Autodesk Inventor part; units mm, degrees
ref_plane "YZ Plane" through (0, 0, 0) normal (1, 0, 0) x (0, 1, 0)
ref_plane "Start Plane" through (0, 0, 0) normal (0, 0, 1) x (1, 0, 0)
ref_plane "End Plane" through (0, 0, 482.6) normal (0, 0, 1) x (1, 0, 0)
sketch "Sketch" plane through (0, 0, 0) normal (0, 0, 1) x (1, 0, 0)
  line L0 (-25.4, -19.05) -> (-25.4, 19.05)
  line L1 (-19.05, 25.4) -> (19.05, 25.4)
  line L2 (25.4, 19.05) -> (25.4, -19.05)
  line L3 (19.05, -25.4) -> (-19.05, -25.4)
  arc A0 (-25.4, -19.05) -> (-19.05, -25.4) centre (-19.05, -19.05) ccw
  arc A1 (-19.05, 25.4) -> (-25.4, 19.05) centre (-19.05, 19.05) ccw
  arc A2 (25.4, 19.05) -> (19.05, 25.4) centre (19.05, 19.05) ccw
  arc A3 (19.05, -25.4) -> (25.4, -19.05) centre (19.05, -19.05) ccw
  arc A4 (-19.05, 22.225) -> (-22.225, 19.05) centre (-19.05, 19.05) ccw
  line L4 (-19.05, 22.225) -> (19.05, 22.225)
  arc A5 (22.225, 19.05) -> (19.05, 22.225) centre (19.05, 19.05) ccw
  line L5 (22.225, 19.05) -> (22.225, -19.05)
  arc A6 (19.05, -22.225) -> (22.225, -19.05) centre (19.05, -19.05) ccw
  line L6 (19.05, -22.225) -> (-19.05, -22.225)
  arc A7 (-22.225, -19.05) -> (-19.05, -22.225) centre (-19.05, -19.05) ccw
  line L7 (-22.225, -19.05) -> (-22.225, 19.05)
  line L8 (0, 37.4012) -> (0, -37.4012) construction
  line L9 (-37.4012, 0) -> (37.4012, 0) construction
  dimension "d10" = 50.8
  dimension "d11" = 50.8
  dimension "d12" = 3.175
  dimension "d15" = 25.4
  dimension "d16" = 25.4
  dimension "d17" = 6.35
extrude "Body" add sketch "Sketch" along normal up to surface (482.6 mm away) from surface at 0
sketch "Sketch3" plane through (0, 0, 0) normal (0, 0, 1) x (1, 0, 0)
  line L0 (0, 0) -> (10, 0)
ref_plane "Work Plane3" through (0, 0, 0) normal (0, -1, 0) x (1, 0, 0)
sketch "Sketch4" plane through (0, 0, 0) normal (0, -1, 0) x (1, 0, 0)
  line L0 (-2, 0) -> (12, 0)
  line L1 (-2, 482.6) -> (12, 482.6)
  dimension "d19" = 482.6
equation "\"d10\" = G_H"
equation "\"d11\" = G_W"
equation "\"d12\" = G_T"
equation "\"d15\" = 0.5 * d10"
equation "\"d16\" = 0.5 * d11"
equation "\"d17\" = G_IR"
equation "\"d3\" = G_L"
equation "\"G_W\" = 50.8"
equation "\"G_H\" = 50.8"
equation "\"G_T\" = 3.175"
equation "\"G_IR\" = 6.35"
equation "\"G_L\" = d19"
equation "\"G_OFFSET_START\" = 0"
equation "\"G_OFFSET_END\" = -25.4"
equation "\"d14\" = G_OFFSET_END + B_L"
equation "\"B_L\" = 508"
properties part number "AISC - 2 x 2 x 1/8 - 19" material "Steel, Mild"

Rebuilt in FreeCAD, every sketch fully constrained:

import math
import FreeCAD as App
import Part
import Sketcher

V = App.Vector
Q = App.Units.Quantity

doc = App.newDocument("Part")
body = doc.addObject("PartDesign::Body", "Body")

# Sketch on XY plane
sketch1 = body.newObject("Sketcher::SketchObject", "Sketch")
sketch1.AttachmentSupport = (doc.getObject("XY_Plane"), [""])
sketch1.MapMode = "FlatFace"
sketch1.addGeometry([
    Part.LineSegment(V(-25.4, 19.1, 0), V(-25.4, -19.1, 0)),  # 0
    Part.ArcOfCircle(Part.Circle(V(-19.1, -19.1, 0), V(0, 0, 1), 6.3), math.radians(180), math.radians(270)),  # 1
    Part.LineSegment(V(-19.1, -25.4, 0), V(19.1, -25.4, 0)),  # 2
    Part.ArcOfCircle(Part.Circle(V(19.1, -19.1, 0), V(0, 0, 1), 6.3), math.radians(-90), math.radians(0)),  # 3
    Part.LineSegment(V(25.4, -19.1, 0), V(25.4, 19.1, 0)),  # 4
    Part.ArcOfCircle(Part.Circle(V(19.1, 19.1, 0), V(0, 0, 1), 6.3), math.radians(0), math.radians(90)),  # 5
    Part.LineSegment(V(19.1, 25.4, 0), V(-19.1, 25.4, 0)),  # 6
    Part.ArcOfCircle(Part.Circle(V(-19.1, 19.1, 0), V(0, 0, 1), 6.3), math.radians(90), math.radians(180)),  # 7
    Part.ArcOfCircle(Part.Circle(V(-19.1, 19.1, 0), V(0, 0, 1), 3.2), math.radians(90), math.radians(180)),  # 8
    Part.LineSegment(V(-19.1, 22.2, 0), V(19.1, 22.2, 0)),  # 9
    Part.ArcOfCircle(Part.Circle(V(19.1, 19.1, 0), V(0, 0, 1), 3.2), math.radians(0), math.radians(90)),  # 10
    Part.LineSegment(V(22.2, 19.1, 0), V(22.2, -19.1, 0)),  # 11
    Part.ArcOfCircle(Part.Circle(V(19.1, -19.1, 0), V(0, 0, 1), 3.2), math.radians(-90), math.radians(0)),  # 12
    Part.LineSegment(V(19.1, -22.2, 0), V(-19.1, -22.2, 0)),  # 13
    Part.ArcOfCircle(Part.Circle(V(-19.1, -19.1, 0), V(0, 0, 1), 3.2), math.radians(180), math.radians(270)),  # 14
    Part.LineSegment(V(-22.2, -19.1, 0), V(-22.2, 19.1, 0)),  # 15
], False)
sketch1.addConstraint([
    Sketcher.Constraint("Tangent", 0, 2, 1, 1),
    Sketcher.Constraint("Tangent", 1, 2, 2, 1),
    Sketcher.Constraint("Tangent", 2, 2, 3, 1),
    Sketcher.Constraint("Tangent", 3, 2, 4, 1),
    Sketcher.Constraint("Tangent", 4, 2, 5, 1),
    Sketcher.Constraint("Tangent", 5, 2, 6, 1),
    Sketcher.Constraint("Tangent", 6, 2, 7, 1),
    Sketcher.Constraint("Tangent", 7, 2, 0, 1),
    Sketcher.Constraint("Tangent", 8, 1, 9, 1),
    Sketcher.Constraint("Tangent", 9, 2, 10, 2),
    Sketcher.Constraint("Tangent", 10, 1, 11, 1),
    Sketcher.Constraint("Tangent", 11, 2, 12, 2),
    Sketcher.Constraint("Tangent", 12, 1, 13, 1),
    Sketcher.Constraint("Tangent", 13, 2, 14, 2),
    Sketcher.Constraint("Tangent", 14, 1, 15, 1),
    Sketcher.Constraint("Tangent", 15, 2, 8, 2),
    Sketcher.Constraint("Vertical", 0),
    Sketcher.Constraint("Horizontal", 2),
    Sketcher.Constraint("Vertical", 4),
    Sketcher.Constraint("Horizontal", 6),
    Sketcher.Constraint("Horizontal", 9),
    Sketcher.Constraint("Vertical", 11),
    Sketcher.Constraint("Horizontal", 13),
    Sketcher.Constraint("Vertical", 15),
    Sketcher.Constraint("Coincident", 8, 3, 7, 3),
    Sketcher.Constraint("Coincident", 10, 3, 5, 3),
    Sketcher.Constraint("Coincident", 12, 3, 3, 3),
    Sketcher.Constraint("Equal", 1, 3),
    Sketcher.Constraint("Equal", 3, 5),
    Sketcher.Constraint("Equal", 5, 7),
    Sketcher.Constraint("Equal", 12, 14),
    Sketcher.Constraint("Symmetric", 1, 3, 5, 3, -1, 1),
    Sketcher.Constraint("Equal", 13, 0),
    Sketcher.Constraint("Radius", 1, Q("0.25 in")),
    Sketcher.Constraint("DistanceX", 0, 2, -1, 1, Q("1 in")),
    Sketcher.Constraint("Radius", 8, Q("0.125 in")),
])
pad1 = body.newObject("PartDesign::Pad", "Pad")
pad1.Profile = sketch1
pad1.Length = Q("19 in")

doc.recompute()
